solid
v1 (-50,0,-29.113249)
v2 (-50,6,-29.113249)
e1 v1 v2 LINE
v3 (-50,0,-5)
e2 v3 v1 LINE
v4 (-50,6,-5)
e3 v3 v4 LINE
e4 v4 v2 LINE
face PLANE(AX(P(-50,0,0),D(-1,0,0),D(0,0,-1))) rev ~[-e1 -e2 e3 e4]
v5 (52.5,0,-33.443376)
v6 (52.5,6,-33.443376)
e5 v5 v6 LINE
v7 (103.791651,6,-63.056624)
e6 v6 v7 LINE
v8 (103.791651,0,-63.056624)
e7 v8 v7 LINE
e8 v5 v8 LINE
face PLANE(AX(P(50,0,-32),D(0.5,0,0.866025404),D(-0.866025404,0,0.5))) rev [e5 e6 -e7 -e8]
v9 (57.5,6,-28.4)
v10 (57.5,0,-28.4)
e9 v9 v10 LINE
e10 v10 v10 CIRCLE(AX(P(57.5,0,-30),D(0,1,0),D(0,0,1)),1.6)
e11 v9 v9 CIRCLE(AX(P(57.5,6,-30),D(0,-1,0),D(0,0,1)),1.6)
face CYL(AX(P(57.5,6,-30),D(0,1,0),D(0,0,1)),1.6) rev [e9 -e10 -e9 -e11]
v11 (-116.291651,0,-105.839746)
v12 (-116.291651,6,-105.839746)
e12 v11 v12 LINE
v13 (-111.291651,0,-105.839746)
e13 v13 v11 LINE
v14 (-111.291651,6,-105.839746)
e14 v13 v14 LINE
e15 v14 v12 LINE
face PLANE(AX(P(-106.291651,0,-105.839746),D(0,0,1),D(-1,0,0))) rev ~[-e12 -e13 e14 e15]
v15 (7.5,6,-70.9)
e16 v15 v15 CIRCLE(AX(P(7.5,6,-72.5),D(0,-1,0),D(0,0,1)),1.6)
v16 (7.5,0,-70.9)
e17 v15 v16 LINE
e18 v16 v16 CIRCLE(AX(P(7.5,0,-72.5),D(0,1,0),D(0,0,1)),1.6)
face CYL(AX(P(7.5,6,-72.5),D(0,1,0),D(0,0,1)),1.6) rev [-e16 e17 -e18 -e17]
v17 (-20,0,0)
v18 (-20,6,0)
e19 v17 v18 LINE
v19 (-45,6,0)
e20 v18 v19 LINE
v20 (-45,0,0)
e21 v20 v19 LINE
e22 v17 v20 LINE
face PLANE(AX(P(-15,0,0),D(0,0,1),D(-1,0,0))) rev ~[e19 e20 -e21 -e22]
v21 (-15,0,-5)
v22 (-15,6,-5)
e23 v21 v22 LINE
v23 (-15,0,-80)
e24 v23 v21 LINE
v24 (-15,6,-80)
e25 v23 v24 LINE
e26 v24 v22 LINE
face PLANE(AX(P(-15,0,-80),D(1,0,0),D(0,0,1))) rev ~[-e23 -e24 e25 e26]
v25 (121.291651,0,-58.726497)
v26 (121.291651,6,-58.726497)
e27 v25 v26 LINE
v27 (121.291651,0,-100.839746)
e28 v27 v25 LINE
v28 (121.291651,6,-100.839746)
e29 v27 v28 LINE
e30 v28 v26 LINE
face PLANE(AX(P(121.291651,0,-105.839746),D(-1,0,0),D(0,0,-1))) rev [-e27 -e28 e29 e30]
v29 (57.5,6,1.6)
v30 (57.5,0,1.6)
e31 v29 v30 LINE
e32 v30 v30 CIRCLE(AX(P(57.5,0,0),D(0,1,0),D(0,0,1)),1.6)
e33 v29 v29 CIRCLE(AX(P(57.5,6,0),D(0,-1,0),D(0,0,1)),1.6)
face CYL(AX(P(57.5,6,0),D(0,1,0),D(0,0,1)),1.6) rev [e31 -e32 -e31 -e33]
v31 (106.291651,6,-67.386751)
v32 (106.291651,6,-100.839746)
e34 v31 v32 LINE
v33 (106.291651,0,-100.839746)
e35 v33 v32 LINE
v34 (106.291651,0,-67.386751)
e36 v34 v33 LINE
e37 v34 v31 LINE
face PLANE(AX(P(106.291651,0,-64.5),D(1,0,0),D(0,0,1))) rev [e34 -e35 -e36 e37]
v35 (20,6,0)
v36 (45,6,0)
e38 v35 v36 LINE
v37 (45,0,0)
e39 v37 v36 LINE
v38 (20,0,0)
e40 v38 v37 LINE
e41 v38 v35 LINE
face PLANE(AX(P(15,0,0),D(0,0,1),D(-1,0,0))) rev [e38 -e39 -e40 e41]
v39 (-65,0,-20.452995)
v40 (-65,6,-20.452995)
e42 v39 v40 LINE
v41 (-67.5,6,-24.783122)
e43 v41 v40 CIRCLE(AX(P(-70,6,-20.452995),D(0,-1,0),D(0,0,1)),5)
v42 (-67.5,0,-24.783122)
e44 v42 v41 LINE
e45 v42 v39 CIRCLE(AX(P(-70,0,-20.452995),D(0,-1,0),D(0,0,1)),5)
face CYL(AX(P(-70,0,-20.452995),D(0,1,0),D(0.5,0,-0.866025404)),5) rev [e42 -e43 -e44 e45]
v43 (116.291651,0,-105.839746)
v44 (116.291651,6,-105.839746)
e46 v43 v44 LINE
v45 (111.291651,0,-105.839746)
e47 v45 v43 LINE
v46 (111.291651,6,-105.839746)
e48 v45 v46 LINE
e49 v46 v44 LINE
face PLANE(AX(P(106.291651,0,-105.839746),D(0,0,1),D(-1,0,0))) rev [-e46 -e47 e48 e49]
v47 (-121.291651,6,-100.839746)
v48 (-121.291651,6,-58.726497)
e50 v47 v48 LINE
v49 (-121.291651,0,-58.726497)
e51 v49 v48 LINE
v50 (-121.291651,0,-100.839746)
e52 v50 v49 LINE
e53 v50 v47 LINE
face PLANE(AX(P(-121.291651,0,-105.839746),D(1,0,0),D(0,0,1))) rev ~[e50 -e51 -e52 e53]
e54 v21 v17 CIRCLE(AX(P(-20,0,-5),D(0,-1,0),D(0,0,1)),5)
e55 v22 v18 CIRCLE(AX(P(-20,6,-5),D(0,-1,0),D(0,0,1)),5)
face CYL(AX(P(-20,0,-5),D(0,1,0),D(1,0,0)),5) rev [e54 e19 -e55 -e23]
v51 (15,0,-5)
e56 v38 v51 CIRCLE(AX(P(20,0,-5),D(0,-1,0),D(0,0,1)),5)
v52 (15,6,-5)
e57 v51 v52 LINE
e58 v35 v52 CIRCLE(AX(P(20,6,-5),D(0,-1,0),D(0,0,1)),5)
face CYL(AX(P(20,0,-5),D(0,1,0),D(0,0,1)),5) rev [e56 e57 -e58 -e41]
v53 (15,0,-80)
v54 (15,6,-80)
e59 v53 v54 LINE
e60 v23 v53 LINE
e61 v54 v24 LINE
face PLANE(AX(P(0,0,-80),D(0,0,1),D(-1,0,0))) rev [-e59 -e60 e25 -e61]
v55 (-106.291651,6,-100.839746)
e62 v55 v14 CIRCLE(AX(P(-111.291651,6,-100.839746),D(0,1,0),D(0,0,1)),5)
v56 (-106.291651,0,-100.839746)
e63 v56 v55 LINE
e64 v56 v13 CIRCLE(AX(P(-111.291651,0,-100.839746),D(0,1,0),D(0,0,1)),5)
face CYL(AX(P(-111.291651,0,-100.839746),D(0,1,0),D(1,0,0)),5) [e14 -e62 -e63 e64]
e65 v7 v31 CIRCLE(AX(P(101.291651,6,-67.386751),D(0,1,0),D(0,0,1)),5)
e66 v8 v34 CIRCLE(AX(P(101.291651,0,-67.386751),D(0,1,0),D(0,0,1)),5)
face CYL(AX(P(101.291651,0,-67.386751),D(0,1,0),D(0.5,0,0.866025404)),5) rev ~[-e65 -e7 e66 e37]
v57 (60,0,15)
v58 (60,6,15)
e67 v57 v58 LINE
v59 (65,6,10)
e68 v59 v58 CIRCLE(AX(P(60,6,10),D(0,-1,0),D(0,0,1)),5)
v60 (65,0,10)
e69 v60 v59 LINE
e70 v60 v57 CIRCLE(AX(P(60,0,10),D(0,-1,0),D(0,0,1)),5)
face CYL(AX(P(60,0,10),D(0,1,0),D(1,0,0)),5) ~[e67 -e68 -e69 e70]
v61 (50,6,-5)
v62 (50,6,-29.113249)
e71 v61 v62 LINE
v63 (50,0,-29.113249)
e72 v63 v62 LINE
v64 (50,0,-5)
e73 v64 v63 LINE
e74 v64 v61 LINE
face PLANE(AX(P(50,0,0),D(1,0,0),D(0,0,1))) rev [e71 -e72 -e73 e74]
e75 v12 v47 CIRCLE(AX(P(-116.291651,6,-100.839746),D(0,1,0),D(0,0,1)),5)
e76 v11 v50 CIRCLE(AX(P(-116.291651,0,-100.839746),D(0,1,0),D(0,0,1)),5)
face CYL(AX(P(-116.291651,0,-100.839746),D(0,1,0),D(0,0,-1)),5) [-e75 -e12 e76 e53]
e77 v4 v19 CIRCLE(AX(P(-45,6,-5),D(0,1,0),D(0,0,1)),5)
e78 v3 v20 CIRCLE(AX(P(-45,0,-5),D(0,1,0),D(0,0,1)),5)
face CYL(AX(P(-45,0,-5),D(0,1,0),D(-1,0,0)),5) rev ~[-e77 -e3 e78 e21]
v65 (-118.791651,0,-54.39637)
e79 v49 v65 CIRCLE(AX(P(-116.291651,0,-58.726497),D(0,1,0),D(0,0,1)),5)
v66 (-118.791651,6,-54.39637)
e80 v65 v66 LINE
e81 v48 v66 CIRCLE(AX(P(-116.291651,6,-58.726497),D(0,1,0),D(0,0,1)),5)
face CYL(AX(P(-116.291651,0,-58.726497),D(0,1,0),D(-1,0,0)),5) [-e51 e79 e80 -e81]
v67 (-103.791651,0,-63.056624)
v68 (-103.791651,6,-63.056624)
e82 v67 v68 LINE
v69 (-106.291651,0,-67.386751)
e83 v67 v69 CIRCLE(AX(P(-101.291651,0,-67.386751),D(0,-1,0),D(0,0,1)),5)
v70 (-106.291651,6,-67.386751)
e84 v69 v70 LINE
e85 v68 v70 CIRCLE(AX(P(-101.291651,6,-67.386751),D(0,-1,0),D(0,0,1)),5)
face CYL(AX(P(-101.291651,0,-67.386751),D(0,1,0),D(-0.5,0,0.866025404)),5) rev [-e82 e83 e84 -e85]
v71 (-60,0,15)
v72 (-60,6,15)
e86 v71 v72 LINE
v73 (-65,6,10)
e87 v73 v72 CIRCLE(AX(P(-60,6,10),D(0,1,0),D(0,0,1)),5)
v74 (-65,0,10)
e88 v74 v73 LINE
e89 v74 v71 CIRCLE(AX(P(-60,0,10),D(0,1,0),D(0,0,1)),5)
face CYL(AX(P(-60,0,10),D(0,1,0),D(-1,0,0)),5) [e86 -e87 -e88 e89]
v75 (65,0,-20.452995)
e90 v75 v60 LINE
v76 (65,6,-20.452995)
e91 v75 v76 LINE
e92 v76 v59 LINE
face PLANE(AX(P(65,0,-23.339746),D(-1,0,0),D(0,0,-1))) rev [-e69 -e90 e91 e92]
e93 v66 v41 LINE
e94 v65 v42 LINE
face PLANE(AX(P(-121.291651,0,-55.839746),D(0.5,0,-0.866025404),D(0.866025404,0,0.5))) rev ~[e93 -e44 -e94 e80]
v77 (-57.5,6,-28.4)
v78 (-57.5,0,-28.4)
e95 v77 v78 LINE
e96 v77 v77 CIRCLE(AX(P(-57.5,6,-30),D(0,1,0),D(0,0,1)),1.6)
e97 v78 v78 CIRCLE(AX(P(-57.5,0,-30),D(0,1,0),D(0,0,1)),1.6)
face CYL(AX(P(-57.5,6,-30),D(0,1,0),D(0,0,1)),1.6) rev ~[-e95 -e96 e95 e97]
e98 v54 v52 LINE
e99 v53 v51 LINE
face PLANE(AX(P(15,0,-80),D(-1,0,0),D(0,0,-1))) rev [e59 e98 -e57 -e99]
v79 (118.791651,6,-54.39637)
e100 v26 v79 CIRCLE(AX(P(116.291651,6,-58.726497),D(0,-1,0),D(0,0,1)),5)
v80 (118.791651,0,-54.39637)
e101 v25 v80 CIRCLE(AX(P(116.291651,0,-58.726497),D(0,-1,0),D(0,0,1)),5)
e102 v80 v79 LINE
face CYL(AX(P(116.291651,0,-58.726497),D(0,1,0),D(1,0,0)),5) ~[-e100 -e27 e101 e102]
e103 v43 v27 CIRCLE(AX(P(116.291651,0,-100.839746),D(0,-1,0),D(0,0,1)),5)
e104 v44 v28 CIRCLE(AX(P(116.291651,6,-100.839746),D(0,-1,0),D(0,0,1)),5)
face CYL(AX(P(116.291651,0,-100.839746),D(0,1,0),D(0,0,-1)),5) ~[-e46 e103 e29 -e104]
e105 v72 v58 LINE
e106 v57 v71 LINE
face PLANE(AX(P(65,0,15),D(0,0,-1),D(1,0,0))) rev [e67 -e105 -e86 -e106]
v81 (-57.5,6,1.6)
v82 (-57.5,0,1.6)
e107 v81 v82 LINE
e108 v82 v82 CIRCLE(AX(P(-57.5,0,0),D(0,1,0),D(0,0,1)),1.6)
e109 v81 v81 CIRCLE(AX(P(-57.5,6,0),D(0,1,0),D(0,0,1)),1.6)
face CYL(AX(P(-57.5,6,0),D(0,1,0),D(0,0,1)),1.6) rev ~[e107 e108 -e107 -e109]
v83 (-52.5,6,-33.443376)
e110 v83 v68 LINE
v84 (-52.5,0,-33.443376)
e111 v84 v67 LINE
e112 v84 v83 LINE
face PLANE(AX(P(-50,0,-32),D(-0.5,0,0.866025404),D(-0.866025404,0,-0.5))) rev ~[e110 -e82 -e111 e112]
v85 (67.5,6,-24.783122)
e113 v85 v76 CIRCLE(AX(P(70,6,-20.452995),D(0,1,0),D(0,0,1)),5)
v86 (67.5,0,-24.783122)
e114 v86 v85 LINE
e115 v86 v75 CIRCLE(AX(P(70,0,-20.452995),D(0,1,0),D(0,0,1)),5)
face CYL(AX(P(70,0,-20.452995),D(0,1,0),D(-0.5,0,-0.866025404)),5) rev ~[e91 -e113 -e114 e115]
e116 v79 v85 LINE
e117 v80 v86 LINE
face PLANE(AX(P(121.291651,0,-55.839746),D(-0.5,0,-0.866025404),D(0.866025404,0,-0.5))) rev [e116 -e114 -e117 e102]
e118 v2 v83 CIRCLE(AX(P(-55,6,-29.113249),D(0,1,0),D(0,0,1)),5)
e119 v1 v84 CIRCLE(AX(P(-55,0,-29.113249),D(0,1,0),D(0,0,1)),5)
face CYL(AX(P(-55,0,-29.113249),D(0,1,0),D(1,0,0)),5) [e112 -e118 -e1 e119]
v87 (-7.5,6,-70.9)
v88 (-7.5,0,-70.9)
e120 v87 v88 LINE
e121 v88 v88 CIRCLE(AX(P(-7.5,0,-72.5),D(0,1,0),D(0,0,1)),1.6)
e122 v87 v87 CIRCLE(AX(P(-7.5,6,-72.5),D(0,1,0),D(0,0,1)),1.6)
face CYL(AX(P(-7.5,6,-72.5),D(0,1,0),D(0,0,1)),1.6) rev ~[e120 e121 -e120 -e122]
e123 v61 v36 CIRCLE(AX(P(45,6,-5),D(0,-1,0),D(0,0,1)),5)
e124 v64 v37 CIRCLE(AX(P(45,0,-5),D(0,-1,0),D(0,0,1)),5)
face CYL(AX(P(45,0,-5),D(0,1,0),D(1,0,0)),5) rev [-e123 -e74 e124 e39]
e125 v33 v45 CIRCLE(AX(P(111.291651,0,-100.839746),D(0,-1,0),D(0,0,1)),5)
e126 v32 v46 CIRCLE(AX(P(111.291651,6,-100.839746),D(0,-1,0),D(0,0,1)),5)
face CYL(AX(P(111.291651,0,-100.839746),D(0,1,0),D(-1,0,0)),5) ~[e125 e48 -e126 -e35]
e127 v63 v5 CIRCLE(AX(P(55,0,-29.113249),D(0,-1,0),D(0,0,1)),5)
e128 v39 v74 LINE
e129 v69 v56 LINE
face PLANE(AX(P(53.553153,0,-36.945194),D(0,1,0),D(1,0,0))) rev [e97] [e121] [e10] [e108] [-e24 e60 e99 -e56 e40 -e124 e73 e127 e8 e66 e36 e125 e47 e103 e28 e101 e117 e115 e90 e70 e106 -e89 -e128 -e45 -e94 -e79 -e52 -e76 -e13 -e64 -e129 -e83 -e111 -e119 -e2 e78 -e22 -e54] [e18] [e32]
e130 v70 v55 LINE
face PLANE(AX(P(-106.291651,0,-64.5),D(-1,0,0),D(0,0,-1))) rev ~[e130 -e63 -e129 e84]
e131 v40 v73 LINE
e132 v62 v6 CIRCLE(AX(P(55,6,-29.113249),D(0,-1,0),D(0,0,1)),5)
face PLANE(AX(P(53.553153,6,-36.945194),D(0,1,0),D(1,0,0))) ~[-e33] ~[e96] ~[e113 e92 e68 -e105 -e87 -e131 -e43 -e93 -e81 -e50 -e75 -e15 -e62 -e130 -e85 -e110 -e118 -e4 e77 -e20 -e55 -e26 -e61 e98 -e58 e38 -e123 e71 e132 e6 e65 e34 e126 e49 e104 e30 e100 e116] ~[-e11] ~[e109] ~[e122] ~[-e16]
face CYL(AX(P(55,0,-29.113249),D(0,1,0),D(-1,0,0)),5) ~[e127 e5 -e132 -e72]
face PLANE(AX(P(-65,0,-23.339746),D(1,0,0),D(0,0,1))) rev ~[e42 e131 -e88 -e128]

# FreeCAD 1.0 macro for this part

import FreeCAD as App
import Part
import Sketcher
from FreeCAD import Vector
Q = App.Units.Quantity


def edges_at(feature, points):
    """Names of the edges that pass closest to the given points."""
    edges = feature.Shape.Edges
    near = lambda p: min(range(len(edges)), key=lambda i: edges[i].distToShape(Part.Vertex(*p))[0])
    return sorted({f"Edge{near(p) + 1}" for p in points})

doc = App.newDocument("Part")
params = doc.addObject("Spreadsheet::Sheet", "Params")
for row, (alias, value) in enumerate([
    ("sketch1_width", "15 mm"),
    ("sketch1_width2", "65 mm"),
    ("sketch1_height", "32 mm"),
    ("sketch1_height2", "50 mm"),
    ("sketch1_height3", "95 mm"),
    ("pad1_length", "6 mm"),
    ("fillet_radius", "5 mm"),
    ("sketch2_diameter", "3.2 mm"),
    ("fillet2_radius", "5 mm"),
], start=1):
    params.set(f"A{row}", alias)
    params.set(f"B{row}", "=" + value)
    params.setAlias(f"B{row}", alias)

body = doc.addObject("PartDesign::Body", "Body")

# Sketch on XZ plane
sketch1 = body.newObject("Sketcher::SketchObject", "Sketch")
sketch1.AttachmentSupport = (doc.getObject("XZ_Plane"), [""])
sketch1.MapMode = "FlatFace"
sketch1.addGeometry([
    Part.LineSegment(Vector(-50, 0, 0), Vector(-50, -32, 0)),  # 0
    Part.LineSegment(Vector(-50, -32, 0), Vector(-106, -64, 0)),  # 1
    Part.LineSegment(Vector(-106, -64, 0), Vector(-106, -106, 0)),  # 2
    Part.LineSegment(Vector(-106, -106, 0), Vector(-121, -106, 0)),  # 3
    Part.LineSegment(Vector(-121, -106, 0), Vector(-121, -56, 0)),  # 4
    Part.LineSegment(Vector(-121, -56, 0), Vector(-65, -23, 0)),  # 5
    Part.LineSegment(Vector(-65, -23, 0), Vector(-65, 15, 0)),  # 6
    Part.LineSegment(Vector(-65, 15, 0), Vector(0, 15, 0)),  # 7
    Part.LineSegment(Vector(0, 15, 0), Vector(0, -80, 0)),  # 8
    Part.LineSegment(Vector(0, -80, 0), Vector(-15, -80, 0)),  # 9
    Part.LineSegment(Vector(-15, -80, 0), Vector(-15, 0, 0)),  # 10
    Part.LineSegment(Vector(-15, 0, 0), Vector(-50, 0, 0)),  # 11
], False)
sketch1.addConstraint([
    Sketcher.Constraint("Coincident", 0, 2, 1, 1),
    Sketcher.Constraint("Coincident", 1, 2, 2, 1),
    Sketcher.Constraint("Coincident", 2, 2, 3, 1),
    Sketcher.Constraint("Coincident", 3, 2, 4, 1),
    Sketcher.Constraint("Coincident", 4, 2, 5, 1),
    Sketcher.Constraint("Coincident", 5, 2, 6, 1),
    Sketcher.Constraint("Coincident", 6, 2, 7, 1),
    Sketcher.Constraint("Coincident", 7, 2, 8, 1),
    Sketcher.Constraint("Coincident", 8, 2, 9, 1),
    Sketcher.Constraint("Coincident", 9, 2, 10, 1),
    Sketcher.Constraint("Coincident", 10, 2, 11, 1),
    Sketcher.Constraint("Coincident", 11, 2, 0, 1),
    Sketcher.Constraint("Vertical", 0),
    Sketcher.Constraint("Vertical", 2),
    Sketcher.Constraint("Horizontal", 3),
    Sketcher.Constraint("Vertical", 4),
    Sketcher.Constraint("Vertical", 6),
    Sketcher.Constraint("Horizontal", 7),
    Sketcher.Constraint("Vertical", 8),
    Sketcher.Constraint("Horizontal", 9),
    Sketcher.Constraint("Vertical", 10),
    Sketcher.Constraint("Horizontal", 11),
    Sketcher.Constraint("PointOnObject", 7, 2, -2),
    Sketcher.Constraint("PointOnObject", 10, 2, -1),
    Sketcher.Constraint("Parallel", 1, 5),
    Sketcher.Constraint("Equal", 3, 9),
    Sketcher.Constraint("Equal", 1, 5),
    Sketcher.Constraint("DistanceX", 3, 2, 3, 1, Q("15 mm")),
    Sketcher.Constraint("DistanceX", 7, 1, 7, 2, Q("65 mm")),
    Sketcher.Constraint("DistanceY", 0, 2, 0, 1, Q("32 mm")),
    Sketcher.Constraint("DistanceY", 4, 1, 4, 2, Q("50 mm")),
    Sketcher.Constraint("DistanceY", 8, 2, 8, 1, Q("95 mm")),
    Sketcher.Constraint("DistanceY", 10, 1, 10, 2, Q("80 mm")),
    Sketcher.Constraint("Angle", 1, Q("-150 deg")),
    Sketcher.Constraint("Distance", 1, Q("65 mm")),
    Sketcher.Constraint("DistanceY", 2, 2, 2, 1, Q("41.339746 mm")),
])
sketch1.setExpression("Constraints[27]", "Params.sketch1_width")
sketch1.setExpression("Constraints[28]", "Params.sketch1_width2")
sketch1.setExpression("Constraints[29]", "Params.sketch1_height")
sketch1.setExpression("Constraints[30]", "Params.sketch1_height2")
sketch1.setExpression("Constraints[31]", "Params.sketch1_height3")
pad1 = body.newObject("PartDesign::Pad", "Pad")
pad1.Profile = sketch1
pad1.setExpression("Length", "Params.pad1_length")
pad1.Reversed = True
doc.recompute()

fillet = body.newObject("PartDesign::Fillet", "Fillet")
fillet.Base = (pad1, edges_at(pad1, [
    (-65, 3, 15),
    (-65, 3, -23.34),
    (-121.292, 3, -55.84),
    (-121.292, 3, -105.84),
    (-106.292, 3, -105.84),
    (-106.292, 3, -64.5),
    (-50, 3, -32),
    (-50, 3, 0),
    (-15, 3, 0),
]))
fillet.setExpression("Radius", "Params.fillet_radius")

# Sketch on XZ plane
sketch2 = body.newObject("Sketcher::SketchObject", "Sketch001")
sketch2.AttachmentSupport = (doc.getObject("XZ_Plane"), [""])
sketch2.MapMode = "FlatFace"
sketch2.AttachmentOffset = App.Placement(Vector(0, 0, -6), App.Rotation())
sketch2.addGeometry([
    Part.Circle(Vector(-7.5, -72.5, 0), Vector(0, 0, 1), 1.6),
    Part.Circle(Vector(-57.5, -30, 0), Vector(0, 0, 1), 1.6),
    Part.Circle(Vector(-57.5, 0, 0), Vector(0, 0, 1), 1.6),
], False)
sketch2.addConstraint([
    Sketcher.Constraint("Equal", 0, 1),
    Sketcher.Constraint("Equal", 1, 2),
    Sketcher.Constraint("PointOnObject", 2, 3, -1),
    Sketcher.Constraint("Vertical", 1, 3, 2, 3),
    Sketcher.Constraint("Diameter", 0, Q("3.2 mm")),
    Sketcher.Constraint("DistanceY", 1, 3, -1, 1, Q("30 mm")),
    Sketcher.Constraint("DistanceX", 1, 3, 0, 3, Q("50 mm")),
    Sketcher.Constraint("DistanceX", 0, 3, -1, 1, Q("7.5 mm")),
    Sketcher.Constraint("DistanceY", 0, 3, -1, 1, Q("72.5 mm")),
])
sketch2.setExpression("Constraints[4]", "Params.sketch2_diameter")
pocket1 = body.newObject("PartDesign::Pocket", "Pocket")
pocket1.Profile = sketch2
pocket1.Type = "ThroughAll"
pocket1.Reversed = True
doc.recompute()

mirrored = body.newObject("PartDesign::Mirrored", "Mirrored")
mirrored.Originals = [pad1, pocket1]
mirrored.MirrorPlane = (doc.getObject("YZ_Plane"), [""])
body.Tip = mirrored
doc.recompute()

fillet2 = body.newObject("PartDesign::Fillet", "Fillet001")
fillet2.Base = (mirrored, edges_at(mirrored, [
    (65, 3, 15),
    (65, 3, -23.34),
    (121.292, 3, -55.84),
    (121.292, 3, -105.84),
    (106.292, 3, -105.84),
    (106.292, 3, -64.5),
    (50, 3, -32),
    (50, 3, 0),
    (15, 3, 0),
]))
fillet2.setExpression("Radius", "Params.fillet2_radius")

doc.recompute()
